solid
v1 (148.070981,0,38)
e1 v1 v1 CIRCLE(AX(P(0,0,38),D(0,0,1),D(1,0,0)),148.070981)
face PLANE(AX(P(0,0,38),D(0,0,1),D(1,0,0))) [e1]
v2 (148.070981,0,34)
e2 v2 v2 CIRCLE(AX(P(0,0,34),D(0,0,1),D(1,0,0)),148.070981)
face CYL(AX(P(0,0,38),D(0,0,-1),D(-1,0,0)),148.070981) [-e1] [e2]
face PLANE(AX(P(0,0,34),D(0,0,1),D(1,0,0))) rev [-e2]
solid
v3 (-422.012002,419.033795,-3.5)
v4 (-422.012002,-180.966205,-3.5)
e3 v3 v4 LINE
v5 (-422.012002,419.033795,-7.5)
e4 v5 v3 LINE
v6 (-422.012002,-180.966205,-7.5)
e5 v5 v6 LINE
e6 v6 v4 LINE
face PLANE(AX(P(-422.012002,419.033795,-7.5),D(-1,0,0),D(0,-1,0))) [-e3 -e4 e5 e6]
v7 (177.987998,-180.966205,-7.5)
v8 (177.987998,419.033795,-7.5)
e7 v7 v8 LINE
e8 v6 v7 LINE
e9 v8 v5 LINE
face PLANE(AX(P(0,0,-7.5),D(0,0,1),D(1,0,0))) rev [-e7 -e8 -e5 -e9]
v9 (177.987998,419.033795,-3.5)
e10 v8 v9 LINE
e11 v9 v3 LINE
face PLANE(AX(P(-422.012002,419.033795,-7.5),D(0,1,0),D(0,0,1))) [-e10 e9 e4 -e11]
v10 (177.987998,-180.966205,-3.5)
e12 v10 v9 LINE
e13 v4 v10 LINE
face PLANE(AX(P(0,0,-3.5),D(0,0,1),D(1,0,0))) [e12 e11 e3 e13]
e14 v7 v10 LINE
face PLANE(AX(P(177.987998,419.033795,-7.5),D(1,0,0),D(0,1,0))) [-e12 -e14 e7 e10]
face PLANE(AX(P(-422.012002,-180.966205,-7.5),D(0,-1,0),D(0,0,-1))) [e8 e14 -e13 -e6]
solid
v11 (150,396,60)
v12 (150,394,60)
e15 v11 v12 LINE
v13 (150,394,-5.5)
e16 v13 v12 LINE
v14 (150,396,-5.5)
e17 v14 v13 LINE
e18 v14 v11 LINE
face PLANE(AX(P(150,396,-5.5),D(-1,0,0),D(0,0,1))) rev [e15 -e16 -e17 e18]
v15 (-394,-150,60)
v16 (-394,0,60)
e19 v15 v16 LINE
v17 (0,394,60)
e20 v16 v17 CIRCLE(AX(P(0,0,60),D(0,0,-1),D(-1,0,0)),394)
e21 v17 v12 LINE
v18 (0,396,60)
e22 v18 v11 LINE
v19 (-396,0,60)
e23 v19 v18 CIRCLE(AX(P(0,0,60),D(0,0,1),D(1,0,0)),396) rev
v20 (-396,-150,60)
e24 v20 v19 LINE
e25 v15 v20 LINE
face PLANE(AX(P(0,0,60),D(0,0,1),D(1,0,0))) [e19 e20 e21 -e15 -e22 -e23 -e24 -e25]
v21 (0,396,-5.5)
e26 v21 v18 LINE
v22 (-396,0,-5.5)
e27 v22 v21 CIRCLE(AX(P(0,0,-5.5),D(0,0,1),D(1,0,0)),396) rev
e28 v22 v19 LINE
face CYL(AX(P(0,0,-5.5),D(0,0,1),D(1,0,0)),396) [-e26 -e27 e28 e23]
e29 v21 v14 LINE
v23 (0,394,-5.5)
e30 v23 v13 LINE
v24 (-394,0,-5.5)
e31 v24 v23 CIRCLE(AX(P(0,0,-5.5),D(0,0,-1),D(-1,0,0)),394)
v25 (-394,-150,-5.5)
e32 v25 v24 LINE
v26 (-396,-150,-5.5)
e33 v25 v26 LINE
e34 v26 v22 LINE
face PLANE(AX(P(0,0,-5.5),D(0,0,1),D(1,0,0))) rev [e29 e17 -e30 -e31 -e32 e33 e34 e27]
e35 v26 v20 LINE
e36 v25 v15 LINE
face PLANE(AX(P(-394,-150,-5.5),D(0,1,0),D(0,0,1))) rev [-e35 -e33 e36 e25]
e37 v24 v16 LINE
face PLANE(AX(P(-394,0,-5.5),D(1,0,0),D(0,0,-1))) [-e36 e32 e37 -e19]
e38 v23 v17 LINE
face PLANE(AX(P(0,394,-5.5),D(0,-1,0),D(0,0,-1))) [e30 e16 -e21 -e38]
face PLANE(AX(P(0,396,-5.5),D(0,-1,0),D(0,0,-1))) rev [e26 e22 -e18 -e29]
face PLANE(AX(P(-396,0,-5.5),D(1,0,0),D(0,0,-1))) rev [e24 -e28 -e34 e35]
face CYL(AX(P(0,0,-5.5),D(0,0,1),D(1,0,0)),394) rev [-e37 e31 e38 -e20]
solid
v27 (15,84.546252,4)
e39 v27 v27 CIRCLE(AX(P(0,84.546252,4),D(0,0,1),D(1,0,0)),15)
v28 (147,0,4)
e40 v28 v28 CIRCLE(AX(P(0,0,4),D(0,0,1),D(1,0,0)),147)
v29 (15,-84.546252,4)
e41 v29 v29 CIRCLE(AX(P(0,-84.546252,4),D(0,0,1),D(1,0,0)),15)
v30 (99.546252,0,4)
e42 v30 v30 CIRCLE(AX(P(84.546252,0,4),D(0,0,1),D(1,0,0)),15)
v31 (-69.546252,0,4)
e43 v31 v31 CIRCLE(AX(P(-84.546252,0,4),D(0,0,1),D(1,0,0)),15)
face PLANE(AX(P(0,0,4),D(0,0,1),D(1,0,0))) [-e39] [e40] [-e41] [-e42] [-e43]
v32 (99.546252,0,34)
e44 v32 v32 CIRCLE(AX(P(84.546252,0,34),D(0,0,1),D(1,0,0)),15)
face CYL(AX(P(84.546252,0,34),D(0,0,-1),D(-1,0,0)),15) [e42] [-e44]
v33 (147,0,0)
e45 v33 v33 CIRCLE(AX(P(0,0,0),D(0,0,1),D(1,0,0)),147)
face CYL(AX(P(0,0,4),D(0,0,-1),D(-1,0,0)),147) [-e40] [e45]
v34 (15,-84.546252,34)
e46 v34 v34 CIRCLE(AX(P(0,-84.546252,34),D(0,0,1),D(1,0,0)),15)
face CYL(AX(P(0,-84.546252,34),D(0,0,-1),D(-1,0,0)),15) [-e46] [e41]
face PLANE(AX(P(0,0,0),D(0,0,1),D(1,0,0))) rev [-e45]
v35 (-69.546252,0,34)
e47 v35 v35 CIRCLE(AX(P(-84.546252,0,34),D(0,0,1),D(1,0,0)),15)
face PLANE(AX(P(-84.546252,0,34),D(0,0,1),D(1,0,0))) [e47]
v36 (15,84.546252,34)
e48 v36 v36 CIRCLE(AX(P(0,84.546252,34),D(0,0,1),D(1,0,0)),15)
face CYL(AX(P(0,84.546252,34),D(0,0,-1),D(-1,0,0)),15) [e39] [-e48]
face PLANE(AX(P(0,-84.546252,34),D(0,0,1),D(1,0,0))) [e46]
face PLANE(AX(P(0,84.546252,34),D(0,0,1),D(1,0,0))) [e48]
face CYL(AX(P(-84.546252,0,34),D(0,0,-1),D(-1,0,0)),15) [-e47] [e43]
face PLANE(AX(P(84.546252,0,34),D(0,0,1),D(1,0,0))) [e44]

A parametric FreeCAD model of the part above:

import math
import FreeCAD as App
import Part
import Sketcher

V = App.Vector


def add_polygon(sketch, points):
    """Adds a closed chain of lines whose ends are joined by coincident constraints."""
    first, n = sketch.GeometryCount, len(points)
    for a, b in zip(points, points[1:] + points[:1]):
        sketch.addGeometry(Part.LineSegment(App.Vector(*a, 0), App.Vector(*b, 0)), False)
    for i in range(n):
        sketch.addConstraint(Sketcher.Constraint("Coincident", first + i, 2, first + (i + 1) % n, 1))

doc = App.newDocument("Part")
body = doc.addObject("PartDesign::Body", "Body")

sketch1 = body.newObject("Sketcher::SketchObject", "Sketch")
sketch1.AttachmentSupport = (doc.getObject("XY_Plane"), [""])
sketch1.MapMode = "FlatFace"
sketch1.addGeometry(Part.Circle(V(0, 0, 0), V(0, 0, 1), 147), False)
sketch1.addConstraint([
    Sketcher.Constraint("Coincident", 0, 3, -1, 1),
    Sketcher.Constraint("Diameter", 0, 294.0),
])
pad1 = body.newObject("PartDesign::Pad", "Pad")
pad1.Profile = sketch1
pad1.Length = 4

sketch2 = body.newObject("Sketcher::SketchObject", "Sketch001")
sketch2.AttachmentSupport = (doc.getObject("XY_Plane"), [""])
sketch2.MapMode = "FlatFace"
sketch2.AttachmentOffset = App.Placement(V(0, 0, 4), App.Rotation())
sketch2.addGeometry([
    Part.Circle(V(0, 85, 0), V(0, 0, 1), 15),
    Part.Circle(V(85, 0, 0), V(0, 0, 1), 15),
    Part.Circle(V(0, -85, 0), V(0, 0, 1), 15),
    Part.Circle(V(-85, 0, 0), V(0, 0, 1), 15),
], False)
sketch2.addConstraint([
    Sketcher.Constraint("Equal", 0, 1),
    Sketcher.Constraint("Equal", 1, 2),
    Sketcher.Constraint("Equal", 2, 3),
    Sketcher.Constraint("Symmetric", 0, 3, 2, 3, -1, 1),
    Sketcher.Constraint("Symmetric", 1, 3, 3, 3, -1, 1),
    Sketcher.Constraint("PointOnObject", 0, 3, -2),
    Sketcher.Constraint("PointOnObject", 1, 3, -1),
    Sketcher.Constraint("Diameter", 0, 30.0),
    Sketcher.Constraint("DistanceY", -1, 1, 0, 3, 84.546252),
    Sketcher.Constraint("DistanceX", -1, 1, 1, 3, 84.546252),
])
pad2 = body.newObject("PartDesign::Pad", "Pad001")
pad2.Profile = sketch2
pad2.Length = 30
body2 = doc.addObject("PartDesign::Body", "Body001")

sketch3 = body2.newObject("Sketcher::SketchObject", "Sketch002")
sketch3.AttachmentSupport = (doc.getObject("XY_Plane001"), [""])
sketch3.MapMode = "FlatFace"
sketch3.addGeometry([
    Part.LineSegment(V(0, 394, 0), V(150, 394, 0)),
    Part.LineSegment(V(150, 394, 0), V(150, 396, 0)),
    Part.LineSegment(V(150, 396, 0), V(0, 396, 0)),
    Part.ArcOfCircle(Part.Circle(V(0, 0, 0), V(0, 0, 1), 396), math.radians(90), math.radians(180)),
    Part.LineSegment(V(-396, 0, 0), V(-396, -150, 0)),
    Part.LineSegment(V(-396, -150, 0), V(-394, -150, 0)),
    Part.LineSegment(V(-394, -150, 0), V(-394, 0, 0)),
    Part.ArcOfCircle(Part.Circle(V(0, 0, 0), V(0, 0, 1), 394), math.radians(90), math.radians(180)),
], False)
sketch3.addConstraint([
    Sketcher.Constraint("Coincident", 0, 2, 1, 1),
    Sketcher.Constraint("Coincident", 1, 2, 2, 1),
    Sketcher.Constraint("Tangent", 2, 2, 3, 1),
    Sketcher.Constraint("Tangent", 3, 2, 4, 1),
    Sketcher.Constraint("Coincident", 4, 2, 5, 1),
    Sketcher.Constraint("Coincident", 5, 2, 6, 1),
    Sketcher.Constraint("Tangent", 6, 2, 7, 2),
    Sketcher.Constraint("Tangent", 7, 1, 0, 1),
    Sketcher.Constraint("Horizontal", 0),
    Sketcher.Constraint("Vertical", 1),
    Sketcher.Constraint("Horizontal", 2),
    Sketcher.Constraint("Vertical", 4),
    Sketcher.Constraint("Horizontal", 5),
    Sketcher.Constraint("Vertical", 6),
    Sketcher.Constraint("Coincident", 3, 3, -1, 1),
    Sketcher.Constraint("Coincident", 7, 3, -1, 1),
    Sketcher.Constraint("Equal", 2, 4),
    Sketcher.Constraint("Radius", 3, 396.0),
    Sketcher.Constraint("Radius", 7, 394.0),
    Sketcher.Constraint("DistanceX", 0, 1, 0, 2, 150.0),
])
pad3 = body2.newObject("PartDesign::Pad", "Pad002")
pad3.Profile = sketch3
pad3.Type = "TwoLengths"
pad3.Length = 60
pad3.Length2 = 5.5
body3 = doc.addObject("PartDesign::Body", "Body002")

sketch4 = body3.newObject("Sketcher::SketchObject", "Sketch003")
sketch4.AttachmentSupport = (doc.getObject("XY_Plane002"), [""])
sketch4.MapMode = "FlatFace"
sketch4.AttachmentOffset = App.Placement(V(0, 0, 34), App.Rotation())
sketch4.addGeometry(Part.Circle(V(0, 0, 0), V(0, 0, 1), 148), False)
sketch4.addConstraint([
    Sketcher.Constraint("Coincident", 0, 3, -1, 1),
    Sketcher.Constraint("Diameter", 0, 296.141963),
])
pad4 = body3.newObject("PartDesign::Pad", "Pad003")
pad4.Profile = sketch4
pad4.Length = 4
body4 = doc.addObject("PartDesign::Body", "Body003")

sketch5 = body4.newObject("Sketcher::SketchObject", "Sketch004")
sketch5.AttachmentSupport = (doc.getObject("XY_Plane003"), [""])
sketch5.MapMode = "FlatFace"
sketch5.AttachmentOffset = App.Placement(V(0, 0, -3.5), App.Rotation())
add_polygon(sketch5, [(-422, 419), (-422, -181), (178, -181), (178, 419)])
sketch5.addConstraint([
    Sketcher.Constraint("Vertical", 0),
    Sketcher.Constraint("Horizontal", 1),
    Sketcher.Constraint("Vertical", 2),
    Sketcher.Constraint("Horizontal", 3),
    Sketcher.Constraint("Equal", 3, 0),
    Sketcher.Constraint("DistanceX", 1, 1, 1, 2, 600.0),
    Sketcher.Constraint("DistanceX", 0, 2, -1, 1, 422.012002),
    Sketcher.Constraint("DistanceY", 0, 2, -1, 1, 180.966205),
])
pad5 = body4.newObject("PartDesign::Pad", "Pad004")
pad5.Profile = sketch5
pad5.Length = 4
pad5.Reversed = True

doc.recompute()
